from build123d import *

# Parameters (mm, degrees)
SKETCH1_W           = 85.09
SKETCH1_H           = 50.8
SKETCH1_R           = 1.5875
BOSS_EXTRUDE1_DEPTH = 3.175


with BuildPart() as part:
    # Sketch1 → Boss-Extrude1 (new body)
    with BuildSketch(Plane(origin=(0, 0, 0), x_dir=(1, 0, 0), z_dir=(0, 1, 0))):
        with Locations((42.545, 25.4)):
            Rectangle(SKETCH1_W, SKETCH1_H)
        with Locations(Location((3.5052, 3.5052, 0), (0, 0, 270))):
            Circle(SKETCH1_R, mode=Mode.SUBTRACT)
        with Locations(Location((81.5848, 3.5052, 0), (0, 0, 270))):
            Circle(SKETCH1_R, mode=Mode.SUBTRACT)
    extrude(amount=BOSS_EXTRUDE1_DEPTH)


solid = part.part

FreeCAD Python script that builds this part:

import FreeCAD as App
import Part
import Sketcher

V = App.Vector
Q = App.Units.Quantity


def add_polygon(sketch, points):
    """Adds a closed chain of lines whose ends are joined by coincident constraints."""
    first, n = sketch.GeometryCount, len(points)
    for a, b in zip(points, points[1:] + points[:1]):
        sketch.addGeometry(Part.LineSegment(App.Vector(*a, 0), App.Vector(*b, 0)), False)
    for i in range(n):
        sketch.addConstraint(Sketcher.Constraint("Coincident", first + i, 2, first + (i + 1) % n, 1))

doc = App.newDocument("Part")
body = doc.addObject("PartDesign::Body", "Body")

sketch1 = doc.addObject("Sketcher::SketchObject", "Sketch")
body.addObject(sketch1)
sketch1.AttachmentSupport = (doc.XZ_Plane, [""])
sketch1.MapMode = "FlatFace"
add_polygon(sketch1, [(0, -50.8), (0, 0), (85.1, 0), (85.1, -50.8)])
sketch1.addGeometry(Part.Circle(V(3.5, -3.5, 0), V(0, 0, 1), 1.6), False)
sketch1.addGeometry(Part.Circle(V(81.6, -3.5, 0), V(0, 0, 1), 1.6), False)
sketch1.addConstraint([
    Sketcher.Constraint("Vertical", 0),
    Sketcher.Constraint("Horizontal", 1),
    Sketcher.Constraint("Vertical", 2),
    Sketcher.Constraint("Horizontal", 3),
    Sketcher.Constraint("Coincident", 0, 2, -1, 1),
    Sketcher.Constraint("Equal", 4, 5),
    Sketcher.Constraint("Horizontal", 4, 3, 5, 3),
    Sketcher.Constraint("DistanceY", 0, 1, 0, 2, Q("2 in")),
    Sketcher.Constraint("Diameter", 4, Q("0.125 in")),
    Sketcher.Constraint("DistanceX", 1, 1, 1, 2, Q("3.35 in")),
    Sketcher.Constraint("DistanceX", -1, 1, 4, 3, Q("0.138 in")),
    Sketcher.Constraint("DistanceY", 4, 3, -1, 1, Q("0.138 in")),
    Sketcher.Constraint("DistanceX", -1, 1, 5, 3, Q("3.212 in")),
])
pad1 = doc.addObject("PartDesign::Pad", "Pad")
body.addObject(pad1)
pad1.Profile = sketch1
pad1.Length = Q("0.125 in")
pad1.Reversed = True

doc.recompute()
